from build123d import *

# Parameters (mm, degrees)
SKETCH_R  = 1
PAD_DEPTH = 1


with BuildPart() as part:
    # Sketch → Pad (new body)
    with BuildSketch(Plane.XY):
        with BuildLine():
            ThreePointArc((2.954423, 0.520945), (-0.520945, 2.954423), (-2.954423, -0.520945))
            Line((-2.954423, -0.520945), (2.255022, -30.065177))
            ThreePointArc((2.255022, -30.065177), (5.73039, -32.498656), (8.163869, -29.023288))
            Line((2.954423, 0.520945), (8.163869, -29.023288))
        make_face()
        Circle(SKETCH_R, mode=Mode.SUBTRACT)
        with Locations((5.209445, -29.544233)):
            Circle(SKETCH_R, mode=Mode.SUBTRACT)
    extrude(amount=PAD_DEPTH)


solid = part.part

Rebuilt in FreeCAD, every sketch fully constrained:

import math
import FreeCAD as App
import Part
import Sketcher
Q = App.Units.Quantity

doc = App.newDocument("Part")
params = doc.addObject("Spreadsheet::Sheet", "Params")
for row, (alias, value) in enumerate([
    ("sketch1_diameter", "2 mm"),
    ("sketch1_radius", "3 mm"),
    ("sketch1_length", "29.999999 mm"),
    ("pad1_length", "1 mm"),
], start=1):
    params.set(f"A{row}", alias)
    params.set(f"B{row}", "=" + value)
    params.setAlias(f"B{row}", alias)

body = doc.addObject("PartDesign::Body", "Body")

# Sketch on XY plane
sketch1 = body.newObject("Sketcher::SketchObject", "Sketch")
sketch1.AttachmentSupport = (doc.getObject("XY_Plane"), [""])
sketch1.MapMode = "FlatFace"
sketch1.addGeometry(Part.ArcOfCircle(Part.Circle(App.Vector(0, 0, 0), App.Vector(0, 0, 1), 3), math.radians(10), math.radians(190)), False)
sketch1.addGeometry(Part.LineSegment(App.Vector(-3, -0.5, 0), App.Vector(2.3, -30.1, 0)), False)
sketch1.addGeometry(Part.ArcOfCircle(Part.Circle(App.Vector(5.2, -29.5, 0), App.Vector(0, 0, 1), 3), math.radians(-170), math.radians(10)), False)
sketch1.addGeometry(Part.LineSegment(App.Vector(8.2, -29, 0), App.Vector(3, 0.5, 0)), False)
sketch1.addGeometry(Part.Circle(App.Vector(5.2, -29.5, 0), App.Vector(0, 0, 1), 1), False)
sketch1.addGeometry(Part.Circle(App.Vector(0, 0, 0), App.Vector(0, 0, 1), 1), False)
sketch1.addConstraint(Sketcher.Constraint("Tangent", 0, 2, 1, 1))
sketch1.addConstraint(Sketcher.Constraint("Tangent", 1, 2, 2, 1))
sketch1.addConstraint(Sketcher.Constraint("Tangent", 2, 2, 3, 1))
sketch1.addConstraint(Sketcher.Constraint("Tangent", 3, 2, 0, 1))
sketch1.addConstraint(Sketcher.Constraint("Coincident", 0, 3, -1, 1))
sketch1.addConstraint(Sketcher.Constraint("Coincident", 5, 3, -1, 1))
sketch1.addConstraint(Sketcher.Constraint("Coincident", 4, 3, 2, 3))
sketch1.addConstraint(Sketcher.Constraint("Equal", 0, 2))
sketch1.addConstraint(Sketcher.Constraint("Equal", 4, 5))
sketch1.addConstraint(Sketcher.Constraint("Diameter", 4, 2.0))
sketch1.addConstraint(Sketcher.Constraint("Radius", 0, 3.0))
sketch1.addConstraint(Sketcher.Constraint("Angle", 1, Q("-80 deg")))
sketch1.addConstraint(Sketcher.Constraint("Distance", 1, 29.999999))
sketch1.setExpression("Constraints[9]", "Params.sketch1_diameter")
sketch1.setExpression("Constraints[10]", "Params.sketch1_radius")
sketch1.setExpression("Constraints[12]", "Params.sketch1_length")
pad1 = body.newObject("PartDesign::Pad", "Pad")
pad1.Profile = sketch1
pad1.setExpression("Length", "Params.pad1_length")

doc.recompute()
